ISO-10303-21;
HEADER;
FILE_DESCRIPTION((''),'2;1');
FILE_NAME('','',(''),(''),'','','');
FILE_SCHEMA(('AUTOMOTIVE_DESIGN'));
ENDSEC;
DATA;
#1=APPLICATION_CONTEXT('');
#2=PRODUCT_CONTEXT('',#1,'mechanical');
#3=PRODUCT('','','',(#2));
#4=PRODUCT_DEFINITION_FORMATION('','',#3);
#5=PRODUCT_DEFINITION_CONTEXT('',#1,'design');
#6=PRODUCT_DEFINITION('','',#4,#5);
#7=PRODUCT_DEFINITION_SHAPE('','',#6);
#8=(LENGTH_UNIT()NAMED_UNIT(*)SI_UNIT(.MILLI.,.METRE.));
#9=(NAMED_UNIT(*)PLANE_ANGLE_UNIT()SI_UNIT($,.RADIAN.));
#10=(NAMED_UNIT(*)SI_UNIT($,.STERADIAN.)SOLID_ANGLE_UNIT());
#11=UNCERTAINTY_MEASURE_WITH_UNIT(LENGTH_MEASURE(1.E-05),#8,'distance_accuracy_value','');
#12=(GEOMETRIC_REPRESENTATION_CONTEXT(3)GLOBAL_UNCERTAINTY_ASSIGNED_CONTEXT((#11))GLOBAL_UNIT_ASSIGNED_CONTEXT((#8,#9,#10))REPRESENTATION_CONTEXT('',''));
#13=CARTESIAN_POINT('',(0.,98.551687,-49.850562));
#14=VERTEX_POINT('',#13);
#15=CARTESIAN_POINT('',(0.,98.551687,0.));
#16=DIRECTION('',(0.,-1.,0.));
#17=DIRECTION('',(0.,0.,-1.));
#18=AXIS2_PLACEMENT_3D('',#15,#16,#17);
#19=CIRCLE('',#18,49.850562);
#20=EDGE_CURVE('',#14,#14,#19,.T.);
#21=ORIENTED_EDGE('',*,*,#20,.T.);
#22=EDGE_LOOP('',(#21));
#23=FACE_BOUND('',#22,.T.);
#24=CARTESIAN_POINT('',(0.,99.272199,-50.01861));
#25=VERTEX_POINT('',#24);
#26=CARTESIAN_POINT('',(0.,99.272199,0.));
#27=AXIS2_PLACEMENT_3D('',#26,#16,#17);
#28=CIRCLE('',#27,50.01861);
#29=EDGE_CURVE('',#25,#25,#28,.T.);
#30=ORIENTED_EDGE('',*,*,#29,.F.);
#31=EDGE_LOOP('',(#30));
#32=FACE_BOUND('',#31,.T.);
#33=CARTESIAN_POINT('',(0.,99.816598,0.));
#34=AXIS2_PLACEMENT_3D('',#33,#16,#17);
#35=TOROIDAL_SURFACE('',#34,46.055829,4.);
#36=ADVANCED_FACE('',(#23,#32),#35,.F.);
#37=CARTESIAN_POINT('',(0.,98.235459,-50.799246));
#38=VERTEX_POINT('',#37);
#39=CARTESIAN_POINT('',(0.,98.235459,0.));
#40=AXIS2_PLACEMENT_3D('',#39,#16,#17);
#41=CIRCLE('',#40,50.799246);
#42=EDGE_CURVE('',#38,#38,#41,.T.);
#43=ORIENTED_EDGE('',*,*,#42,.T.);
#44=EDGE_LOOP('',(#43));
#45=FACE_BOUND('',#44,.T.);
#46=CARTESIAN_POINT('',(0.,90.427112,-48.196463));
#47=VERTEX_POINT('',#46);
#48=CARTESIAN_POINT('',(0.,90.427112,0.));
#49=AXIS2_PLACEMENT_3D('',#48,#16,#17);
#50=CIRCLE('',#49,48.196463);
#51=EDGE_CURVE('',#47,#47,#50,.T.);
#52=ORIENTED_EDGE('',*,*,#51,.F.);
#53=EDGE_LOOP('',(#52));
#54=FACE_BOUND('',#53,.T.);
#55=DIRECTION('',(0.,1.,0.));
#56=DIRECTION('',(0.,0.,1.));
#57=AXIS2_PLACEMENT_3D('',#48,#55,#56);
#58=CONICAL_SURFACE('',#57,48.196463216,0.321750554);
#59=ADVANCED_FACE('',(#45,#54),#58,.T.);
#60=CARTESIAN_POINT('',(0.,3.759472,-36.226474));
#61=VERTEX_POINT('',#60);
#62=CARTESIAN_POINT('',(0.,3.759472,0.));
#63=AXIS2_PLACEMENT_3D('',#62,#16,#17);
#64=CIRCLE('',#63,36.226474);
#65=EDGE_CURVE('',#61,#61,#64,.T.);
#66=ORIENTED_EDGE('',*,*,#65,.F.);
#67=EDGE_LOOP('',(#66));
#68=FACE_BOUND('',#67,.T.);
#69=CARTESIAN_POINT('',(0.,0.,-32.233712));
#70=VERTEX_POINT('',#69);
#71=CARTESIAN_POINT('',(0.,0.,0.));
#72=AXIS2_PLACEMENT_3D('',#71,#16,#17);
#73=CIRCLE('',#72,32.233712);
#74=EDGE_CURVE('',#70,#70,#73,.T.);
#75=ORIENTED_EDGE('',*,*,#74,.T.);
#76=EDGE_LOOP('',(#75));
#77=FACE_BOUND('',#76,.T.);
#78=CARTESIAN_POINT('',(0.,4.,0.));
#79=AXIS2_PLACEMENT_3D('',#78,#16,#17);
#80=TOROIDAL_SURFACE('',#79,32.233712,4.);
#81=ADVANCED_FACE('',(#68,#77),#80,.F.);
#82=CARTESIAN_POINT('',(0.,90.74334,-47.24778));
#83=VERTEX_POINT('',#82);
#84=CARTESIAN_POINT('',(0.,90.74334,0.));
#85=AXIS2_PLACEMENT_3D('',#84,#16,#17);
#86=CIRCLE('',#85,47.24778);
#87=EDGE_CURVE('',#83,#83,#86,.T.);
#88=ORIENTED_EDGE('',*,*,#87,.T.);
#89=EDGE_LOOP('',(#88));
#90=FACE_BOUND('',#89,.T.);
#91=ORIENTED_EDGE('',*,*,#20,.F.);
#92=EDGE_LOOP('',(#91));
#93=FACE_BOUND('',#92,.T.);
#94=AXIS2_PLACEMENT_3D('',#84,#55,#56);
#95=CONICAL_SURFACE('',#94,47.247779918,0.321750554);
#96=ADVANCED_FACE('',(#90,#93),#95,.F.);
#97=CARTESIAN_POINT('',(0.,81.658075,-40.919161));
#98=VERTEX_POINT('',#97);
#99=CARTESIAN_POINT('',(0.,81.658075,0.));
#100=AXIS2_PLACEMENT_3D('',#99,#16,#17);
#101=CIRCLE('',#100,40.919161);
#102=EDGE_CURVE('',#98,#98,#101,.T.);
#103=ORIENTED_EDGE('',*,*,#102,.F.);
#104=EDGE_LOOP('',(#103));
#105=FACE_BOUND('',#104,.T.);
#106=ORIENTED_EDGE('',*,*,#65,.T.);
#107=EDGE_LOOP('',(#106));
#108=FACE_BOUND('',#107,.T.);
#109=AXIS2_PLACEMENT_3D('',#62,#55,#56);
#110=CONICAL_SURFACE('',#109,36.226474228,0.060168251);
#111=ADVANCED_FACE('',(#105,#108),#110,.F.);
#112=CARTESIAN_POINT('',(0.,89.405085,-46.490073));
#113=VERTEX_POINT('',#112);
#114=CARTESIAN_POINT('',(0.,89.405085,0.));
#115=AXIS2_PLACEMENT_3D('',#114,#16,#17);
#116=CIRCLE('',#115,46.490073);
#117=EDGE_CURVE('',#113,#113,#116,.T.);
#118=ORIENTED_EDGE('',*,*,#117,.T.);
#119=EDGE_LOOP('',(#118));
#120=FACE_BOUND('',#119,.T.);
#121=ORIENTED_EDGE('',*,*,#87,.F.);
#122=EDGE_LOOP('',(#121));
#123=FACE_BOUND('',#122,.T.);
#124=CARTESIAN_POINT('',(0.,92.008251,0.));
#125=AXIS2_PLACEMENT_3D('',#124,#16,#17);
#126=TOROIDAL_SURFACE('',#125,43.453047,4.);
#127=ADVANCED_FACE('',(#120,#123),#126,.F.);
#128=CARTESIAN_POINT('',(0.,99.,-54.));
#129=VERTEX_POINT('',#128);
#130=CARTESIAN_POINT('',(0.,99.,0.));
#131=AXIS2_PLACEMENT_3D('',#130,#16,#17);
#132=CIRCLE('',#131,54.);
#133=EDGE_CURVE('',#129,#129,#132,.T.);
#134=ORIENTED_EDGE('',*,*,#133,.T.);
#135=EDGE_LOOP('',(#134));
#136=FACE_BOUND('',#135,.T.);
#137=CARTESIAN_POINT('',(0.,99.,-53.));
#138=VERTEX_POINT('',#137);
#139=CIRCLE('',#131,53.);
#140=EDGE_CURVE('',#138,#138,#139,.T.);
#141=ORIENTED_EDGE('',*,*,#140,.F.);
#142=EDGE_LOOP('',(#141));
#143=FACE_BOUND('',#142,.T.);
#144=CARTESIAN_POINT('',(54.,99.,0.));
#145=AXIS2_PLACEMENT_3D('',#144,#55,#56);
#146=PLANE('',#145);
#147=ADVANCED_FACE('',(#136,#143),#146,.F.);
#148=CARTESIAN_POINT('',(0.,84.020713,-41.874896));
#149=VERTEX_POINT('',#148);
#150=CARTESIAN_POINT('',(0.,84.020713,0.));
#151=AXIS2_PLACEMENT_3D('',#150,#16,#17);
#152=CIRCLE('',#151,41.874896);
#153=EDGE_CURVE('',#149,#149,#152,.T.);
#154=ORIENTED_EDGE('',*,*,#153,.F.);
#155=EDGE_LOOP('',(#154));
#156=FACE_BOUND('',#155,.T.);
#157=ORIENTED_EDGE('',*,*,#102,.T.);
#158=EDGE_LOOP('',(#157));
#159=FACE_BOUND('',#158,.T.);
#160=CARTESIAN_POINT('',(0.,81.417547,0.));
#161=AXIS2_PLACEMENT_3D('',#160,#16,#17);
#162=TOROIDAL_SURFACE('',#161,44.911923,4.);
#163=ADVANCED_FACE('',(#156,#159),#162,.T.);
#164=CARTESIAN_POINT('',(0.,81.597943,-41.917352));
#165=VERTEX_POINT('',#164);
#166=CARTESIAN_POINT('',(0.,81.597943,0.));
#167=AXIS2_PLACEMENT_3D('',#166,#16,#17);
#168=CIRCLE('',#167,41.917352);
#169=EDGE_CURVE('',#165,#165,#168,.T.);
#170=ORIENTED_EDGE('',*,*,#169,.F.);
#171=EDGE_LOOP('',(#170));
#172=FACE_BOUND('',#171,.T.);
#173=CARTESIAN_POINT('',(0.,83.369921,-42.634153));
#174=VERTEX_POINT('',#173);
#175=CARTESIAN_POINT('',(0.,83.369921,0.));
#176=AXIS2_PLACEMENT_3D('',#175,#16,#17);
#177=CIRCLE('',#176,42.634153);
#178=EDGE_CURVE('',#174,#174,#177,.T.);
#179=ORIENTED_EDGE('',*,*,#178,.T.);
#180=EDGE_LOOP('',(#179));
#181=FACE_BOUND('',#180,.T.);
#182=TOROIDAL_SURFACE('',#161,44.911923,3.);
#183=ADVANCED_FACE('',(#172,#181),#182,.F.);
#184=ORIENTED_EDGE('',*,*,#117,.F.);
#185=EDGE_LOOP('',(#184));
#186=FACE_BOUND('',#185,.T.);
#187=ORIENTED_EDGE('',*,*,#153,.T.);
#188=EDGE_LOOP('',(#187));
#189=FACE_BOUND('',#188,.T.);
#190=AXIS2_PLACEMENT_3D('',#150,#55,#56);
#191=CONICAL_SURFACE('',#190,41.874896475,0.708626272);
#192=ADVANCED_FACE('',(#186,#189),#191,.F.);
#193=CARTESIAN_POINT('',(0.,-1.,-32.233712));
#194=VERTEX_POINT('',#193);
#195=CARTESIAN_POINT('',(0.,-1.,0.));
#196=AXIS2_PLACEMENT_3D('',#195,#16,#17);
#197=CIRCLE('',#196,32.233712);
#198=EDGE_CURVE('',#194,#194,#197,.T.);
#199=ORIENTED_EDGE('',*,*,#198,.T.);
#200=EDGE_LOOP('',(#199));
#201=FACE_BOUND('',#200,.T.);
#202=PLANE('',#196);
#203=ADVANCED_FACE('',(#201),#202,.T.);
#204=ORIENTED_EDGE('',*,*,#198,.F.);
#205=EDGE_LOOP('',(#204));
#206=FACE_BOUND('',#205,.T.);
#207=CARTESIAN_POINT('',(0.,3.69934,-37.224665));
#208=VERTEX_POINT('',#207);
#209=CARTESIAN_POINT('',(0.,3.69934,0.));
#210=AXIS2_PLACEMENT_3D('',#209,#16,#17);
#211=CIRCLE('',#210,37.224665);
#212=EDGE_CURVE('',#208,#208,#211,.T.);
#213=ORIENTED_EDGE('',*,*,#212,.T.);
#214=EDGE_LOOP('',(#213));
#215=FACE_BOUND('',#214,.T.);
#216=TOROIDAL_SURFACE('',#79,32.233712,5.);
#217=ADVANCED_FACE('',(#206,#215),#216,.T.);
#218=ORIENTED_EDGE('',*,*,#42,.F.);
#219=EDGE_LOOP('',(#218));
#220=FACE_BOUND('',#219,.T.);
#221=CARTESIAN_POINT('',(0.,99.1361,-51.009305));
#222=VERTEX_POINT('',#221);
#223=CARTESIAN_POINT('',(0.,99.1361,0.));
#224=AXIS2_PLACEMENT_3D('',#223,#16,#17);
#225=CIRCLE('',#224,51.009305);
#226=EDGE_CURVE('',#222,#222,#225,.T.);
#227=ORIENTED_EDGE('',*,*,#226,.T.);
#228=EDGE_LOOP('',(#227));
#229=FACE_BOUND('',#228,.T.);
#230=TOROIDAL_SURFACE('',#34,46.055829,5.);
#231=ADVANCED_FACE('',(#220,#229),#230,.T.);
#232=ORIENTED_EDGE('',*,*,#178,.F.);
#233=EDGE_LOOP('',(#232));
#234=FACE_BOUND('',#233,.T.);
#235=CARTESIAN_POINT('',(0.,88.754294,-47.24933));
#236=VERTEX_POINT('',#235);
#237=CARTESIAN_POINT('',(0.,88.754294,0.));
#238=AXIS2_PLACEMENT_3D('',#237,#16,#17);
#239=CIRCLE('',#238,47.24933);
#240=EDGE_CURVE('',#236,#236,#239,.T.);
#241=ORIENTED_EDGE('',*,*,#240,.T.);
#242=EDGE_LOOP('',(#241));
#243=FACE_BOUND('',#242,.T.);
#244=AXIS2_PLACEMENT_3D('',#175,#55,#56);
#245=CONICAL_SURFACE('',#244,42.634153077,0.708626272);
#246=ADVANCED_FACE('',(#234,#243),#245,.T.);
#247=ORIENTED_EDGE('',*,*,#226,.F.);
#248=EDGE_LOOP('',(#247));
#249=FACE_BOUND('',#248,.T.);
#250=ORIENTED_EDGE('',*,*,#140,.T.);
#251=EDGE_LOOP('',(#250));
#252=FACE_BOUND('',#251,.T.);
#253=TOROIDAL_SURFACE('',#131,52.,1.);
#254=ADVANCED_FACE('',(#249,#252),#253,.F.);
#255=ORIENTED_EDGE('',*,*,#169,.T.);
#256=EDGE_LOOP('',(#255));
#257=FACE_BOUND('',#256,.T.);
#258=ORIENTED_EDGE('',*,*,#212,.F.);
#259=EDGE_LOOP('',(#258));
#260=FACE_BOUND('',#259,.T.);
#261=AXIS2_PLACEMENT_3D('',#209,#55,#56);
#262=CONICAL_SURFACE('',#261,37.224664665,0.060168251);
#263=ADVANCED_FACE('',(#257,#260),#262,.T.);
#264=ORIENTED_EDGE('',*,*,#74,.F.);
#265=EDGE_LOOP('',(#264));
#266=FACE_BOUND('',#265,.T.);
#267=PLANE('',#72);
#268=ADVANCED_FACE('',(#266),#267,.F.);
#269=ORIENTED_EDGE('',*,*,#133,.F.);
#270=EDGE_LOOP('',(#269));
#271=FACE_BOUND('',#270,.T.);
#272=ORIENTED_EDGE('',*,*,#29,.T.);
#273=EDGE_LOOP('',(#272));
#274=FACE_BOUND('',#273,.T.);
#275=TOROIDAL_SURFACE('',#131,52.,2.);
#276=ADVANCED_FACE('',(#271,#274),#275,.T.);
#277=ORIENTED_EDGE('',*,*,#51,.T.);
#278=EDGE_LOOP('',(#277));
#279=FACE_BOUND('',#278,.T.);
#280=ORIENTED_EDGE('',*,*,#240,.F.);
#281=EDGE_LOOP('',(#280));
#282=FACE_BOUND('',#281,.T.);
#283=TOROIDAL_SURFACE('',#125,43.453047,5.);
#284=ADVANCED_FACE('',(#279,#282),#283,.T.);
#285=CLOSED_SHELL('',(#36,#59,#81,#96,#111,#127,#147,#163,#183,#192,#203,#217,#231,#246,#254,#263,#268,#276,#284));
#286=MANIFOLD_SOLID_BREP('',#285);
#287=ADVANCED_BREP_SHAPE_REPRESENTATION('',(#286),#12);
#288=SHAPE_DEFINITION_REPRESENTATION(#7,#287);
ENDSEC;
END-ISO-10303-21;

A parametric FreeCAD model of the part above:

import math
import FreeCAD as App
import Part
import Sketcher
Q = App.Units.Quantity

doc = App.newDocument("Part")
body = doc.addObject("PartDesign::Body", "Body")

sketch1 = doc.addObject("Sketcher::SketchObject", "Sketch")
body.addObject(sketch1)
sketch1.AttachmentSupport = (doc.XY_Plane, [""])
sketch1.MapMode = "FlatFace"
sketch1.addGeometry(Part.LineSegment(App.Vector(32.233712, 0, 0), App.Vector(0, 0, 0)), False)
sketch1.addGeometry(Part.LineSegment(App.Vector(0, 0, 0), App.Vector(0, -1, 0)), False)
sketch1.addGeometry(Part.LineSegment(App.Vector(0, -1, 0), App.Vector(32.233712, -1, 0)), False)
sketch1.addGeometry(Part.ArcOfCircle(Part.Circle(App.Vector(32.233712, 4, 0), App.Vector(0, 0, 1), 5), math.radians(-90), math.radians(-3.447387)), False)
sketch1.addGeometry(Part.LineSegment(App.Vector(37.224665, 3.69934, 0), App.Vector(41.917352, 81.597943, 0)), False)
sketch1.addGeometry(Part.ArcOfCircle(Part.Circle(App.Vector(44.911923, 81.417547, 0), App.Vector(0, 0, 1), 3), math.radians(139.398705), math.radians(176.552613)), False)
sketch1.addGeometry(Part.LineSegment(App.Vector(42.634153, 83.369921, 0), App.Vector(47.24933, 88.754294, 0)), False)
sketch1.addGeometry(Part.ArcOfCircle(Part.Circle(App.Vector(43.453047, 92.008251, 0), App.Vector(0, 0, 1), 5), math.radians(-40.601295), math.radians(-18.434949)), False)
sketch1.addGeometry(Part.LineSegment(App.Vector(48.196463, 90.427112, 0), App.Vector(50.799246, 98.235459, 0)), False)
sketch1.addGeometry(Part.ArcOfCircle(Part.Circle(App.Vector(46.055829, 99.816598, 0), App.Vector(0, 0, 1), 5), math.radians(-18.434949), math.radians(-7.822212)), False)
sketch1.addGeometry(Part.ArcOfCircle(Part.Circle(App.Vector(52, 99, 0), App.Vector(0, 0, 1), 1), math.radians(0), math.radians(172.177788)), False)
sketch1.addGeometry(Part.LineSegment(App.Vector(53, 99, 0), App.Vector(54, 99, 0)), False)
sketch1.addGeometry(Part.ArcOfCircle(Part.Circle(App.Vector(52, 99, 0), App.Vector(0, 0, 1), 2), math.radians(0), math.radians(172.177788)), False)
sketch1.addGeometry(Part.ArcOfCircle(Part.Circle(App.Vector(46.055829, 99.816598, 0), App.Vector(0, 0, 1), 4), math.radians(-18.434949), math.radians(-7.822212)), False)
sketch1.addGeometry(Part.LineSegment(App.Vector(49.850562, 98.551687, 0), App.Vector(47.24778, 90.74334, 0)), False)
sketch1.addGeometry(Part.ArcOfCircle(Part.Circle(App.Vector(43.453047, 92.008251, 0), App.Vector(0, 0, 1), 4), math.radians(-40.601295), math.radians(-18.434949)), False)
sketch1.addGeometry(Part.LineSegment(App.Vector(46.490073, 89.405085, 0), App.Vector(41.874896, 84.020713, 0)), False)
sketch1.addGeometry(Part.ArcOfCircle(Part.Circle(App.Vector(44.911923, 81.417547, 0), App.Vector(0, 0, 1), 4), math.radians(139.398705), math.radians(176.552613)), False)
sketch1.addGeometry(Part.LineSegment(App.Vector(40.919161, 81.658075, 0), App.Vector(36.226474, 3.759472, 0)), False)
sketch1.addGeometry(Part.ArcOfCircle(Part.Circle(App.Vector(32.233712, 4, 0), App.Vector(0, 0, 1), 4), math.radians(-90), math.radians(-3.447387)), False)
sketch1.addConstraint(Sketcher.Constraint("Coincident", 0, 2, 1, 1))
sketch1.addConstraint(Sketcher.Constraint("Coincident", 1, 2, 2, 1))
sketch1.addConstraint(Sketcher.Constraint("Tangent", 2, 2, 3, 1))
sketch1.addConstraint(Sketcher.Constraint("Tangent", 3, 2, 4, 1))
sketch1.addConstraint(Sketcher.Constraint("Tangent", 4, 2, 5, 2))
sketch1.addConstraint(Sketcher.Constraint("Tangent", 5, 1, 6, 1))
sketch1.addConstraint(Sketcher.Constraint("Tangent", 6, 2, 7, 1))
sketch1.addConstraint(Sketcher.Constraint("Tangent", 7, 2, 8, 1))
sketch1.addConstraint(Sketcher.Constraint("Tangent", 8, 2, 9, 1))
sketch1.addConstraint(Sketcher.Constraint("Tangent", 9, 2, 10, 2))
sketch1.addConstraint(Sketcher.Constraint("Coincident", 10, 1, 11, 1))
sketch1.addConstraint(Sketcher.Constraint("Coincident", 11, 2, 12, 1))
sketch1.addConstraint(Sketcher.Constraint("Tangent", 12, 2, 13, 2))
sketch1.addConstraint(Sketcher.Constraint("Tangent", 13, 1, 14, 1))
sketch1.addConstraint(Sketcher.Constraint("Tangent", 14, 2, 15, 2))
sketch1.addConstraint(Sketcher.Constraint("Tangent", 15, 1, 16, 1))
sketch1.addConstraint(Sketcher.Constraint("Tangent", 16, 2, 17, 1))
sketch1.addConstraint(Sketcher.Constraint("Tangent", 17, 2, 18, 1))
sketch1.addConstraint(Sketcher.Constraint("Tangent", 18, 2, 19, 2))
sketch1.addConstraint(Sketcher.Constraint("Tangent", 19, 1, 0, 1))
sketch1.addConstraint(Sketcher.Constraint("Horizontal", 0))
sketch1.addConstraint(Sketcher.Constraint("Vertical", 1))
sketch1.addConstraint(Sketcher.Constraint("Horizontal", 2))
sketch1.addConstraint(Sketcher.Constraint("Horizontal", 11))
sketch1.addConstraint(Sketcher.Constraint("Coincident", 0, 2, -1, 1))
sketch1.addConstraint(Sketcher.Constraint("Coincident", 12, 3, 10, 3))
sketch1.addConstraint(Sketcher.Constraint("Coincident", 13, 3, 9, 3))
sketch1.addConstraint(Sketcher.Constraint("Coincident", 15, 3, 7, 3))
sketch1.addConstraint(Sketcher.Constraint("Coincident", 17, 3, 5, 3))
sketch1.addConstraint(Sketcher.Constraint("Coincident", 19, 3, 3, 3))
sketch1.addConstraint(Sketcher.Constraint("Equal", 3, 7))
sketch1.addConstraint(Sketcher.Constraint("Equal", 7, 9))
sketch1.addConstraint(Sketcher.Constraint("Equal", 13, 15))
sketch1.addConstraint(Sketcher.Constraint("Equal", 15, 17))
sketch1.addConstraint(Sketcher.Constraint("Equal", 17, 19))
sketch1.addConstraint(Sketcher.Constraint("Parallel", 6, 16))
sketch1.addConstraint(Sketcher.Constraint("Horizontal", 12, 3, 10, 1))
sketch1.addConstraint(Sketcher.Constraint("Radius", 3, Q("5 mm")))
sketch1.addConstraint(Sketcher.Constraint("Radius", 5, Q("3 mm")))
sketch1.addConstraint(Sketcher.Constraint("Radius", 10, Q("1 mm")))
sketch1.addConstraint(Sketcher.Constraint("DistanceX", -1, 1, 10, 3, Q("52 mm")))
sketch1.addConstraint(Sketcher.Constraint("DistanceY", -1, 1, 10, 3, Q("99 mm")))
sketch1.addConstraint(Sketcher.Constraint("DistanceY", -1, 1, 9, 2, Q("99.1361 mm")))
sketch1.addConstraint(Sketcher.Constraint("DistanceX", 4, 2, 5, 1, Q("0.716802 mm")))
sketch1.addConstraint(Sketcher.Constraint("Distance", 4, Q("78.039821 mm")))
sketch1.addConstraint(Sketcher.Constraint("Distance", 8, Q("8.230721 mm")))
sketch1.addConstraint(Sketcher.Constraint("DistanceX", 0, 2, 0, 1, Q("32.233712 mm")))
sketch1.addConstraint(Sketcher.Constraint("DistanceY", -1, 1, 7, 3, Q("92.008251 mm")))
revolution = doc.addObject("PartDesign::Revolution", "Revolution")
body.addObject(revolution)
revolution.Profile = sketch1
revolution.ReferenceAxis = (sketch1, ["V_Axis"])
revolution.Angle = 360

doc.recompute()
